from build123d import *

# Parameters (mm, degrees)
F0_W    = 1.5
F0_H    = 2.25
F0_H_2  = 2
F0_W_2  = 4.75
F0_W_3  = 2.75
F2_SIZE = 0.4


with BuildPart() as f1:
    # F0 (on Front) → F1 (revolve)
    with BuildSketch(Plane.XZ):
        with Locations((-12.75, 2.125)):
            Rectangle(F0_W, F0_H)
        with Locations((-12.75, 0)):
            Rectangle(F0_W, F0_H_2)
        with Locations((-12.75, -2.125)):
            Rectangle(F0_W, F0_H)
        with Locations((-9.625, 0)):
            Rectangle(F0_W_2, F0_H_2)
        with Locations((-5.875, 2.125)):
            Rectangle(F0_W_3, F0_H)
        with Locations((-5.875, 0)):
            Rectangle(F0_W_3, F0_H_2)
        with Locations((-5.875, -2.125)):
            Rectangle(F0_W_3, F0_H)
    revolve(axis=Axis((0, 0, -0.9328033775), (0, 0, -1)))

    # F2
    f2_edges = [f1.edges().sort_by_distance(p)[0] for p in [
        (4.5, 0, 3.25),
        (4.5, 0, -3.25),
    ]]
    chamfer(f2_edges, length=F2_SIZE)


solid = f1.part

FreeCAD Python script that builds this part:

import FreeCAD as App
import Part
import Sketcher

V = App.Vector
Q = App.Units.Quantity


def edges_at(feature, points):
    """Names of the edges that pass closest to the given points."""
    edges = feature.Shape.Edges
    near = lambda p: min(range(len(edges)), key=lambda i: edges[i].distToShape(Part.Vertex(*p))[0])
    return sorted({f"Edge{near(p) + 1}" for p in points})


def add_polygon(sketch, points):
    """Adds a closed chain of lines whose ends are joined by coincident constraints."""
    first, n = sketch.GeometryCount, len(points)
    for a, b in zip(points, points[1:] + points[:1]):
        sketch.addGeometry(Part.LineSegment(App.Vector(*a, 0), App.Vector(*b, 0)), False)
    for i in range(n):
        sketch.addConstraint(Sketcher.Constraint("Coincident", first + i, 2, first + (i + 1) % n, 1))

doc = App.newDocument("Part")
body = doc.addObject("PartDesign::Body", "Body")

sketch1 = body.newObject("Sketcher::SketchObject", "Sketch")
sketch1.AttachmentSupport = (doc.getObject("XZ_Plane"), [""])
sketch1.MapMode = "FlatFace"
add_polygon(sketch1, [(-13.5, 3.2), (-13.5, -3.2), (-12, -3.2), (-12, -1), (-7.2, -1), (-7.2, -3.2), (-4.5, -3.2), (-4.5, 3.2), (-7.2, 3.2), (-7.2, 1), (-12, 1), (-12, 3.2)])
sketch1.addConstraint([
    Sketcher.Constraint("Vertical", 0),
    Sketcher.Constraint("Horizontal", 1),
    Sketcher.Constraint("Vertical", 2),
    Sketcher.Constraint("Horizontal", 3),
    Sketcher.Constraint("Vertical", 4),
    Sketcher.Constraint("Horizontal", 5),
    Sketcher.Constraint("Vertical", 6),
    Sketcher.Constraint("Horizontal", 7),
    Sketcher.Constraint("Vertical", 8),
    Sketcher.Constraint("Horizontal", 9),
    Sketcher.Constraint("Vertical", 10),
    Sketcher.Constraint("Horizontal", 11),
    Sketcher.Constraint("Symmetric", 4, 2, 7, 2, -1),
    Sketcher.Constraint("Symmetric", 2, 2, 9, 2, -1),
    Sketcher.Constraint("Horizontal", 1, 2, 4, 2),
    Sketcher.Constraint("Horizontal", 7, 2, 10, 2),
    Sketcher.Constraint("DistanceX", 1, 1, 1, 2, Q("1.5 mm")),
    Sketcher.Constraint("DistanceY", 0, 2, 0, 1, Q("6.5 mm")),
    Sketcher.Constraint("DistanceX", 1, 2, -1, 1, Q("12 mm")),
    Sketcher.Constraint("DistanceY", 2, 2, -1, 1, Q("1 mm")),
    Sketcher.Constraint("DistanceX", 0, 2, 5, 2, Q("9 mm")),
    Sketcher.Constraint("DistanceX", 3, 1, 3, 2, Q("4.75 mm")),
])
revolution = body.newObject("PartDesign::Revolution", "Revolution")
revolution.Profile = sketch1
revolution.ReferenceAxis = (sketch1, ["V_Axis"])
revolution.Angle = 360
doc.recompute()

chamfer = body.newObject("PartDesign::Chamfer", "Chamfer")
chamfer.Base = (revolution, edges_at(revolution, [(4.5, 0, 3.25), (4.5, 0, -3.25)]))
chamfer.Size = 0.4

doc.recompute()
